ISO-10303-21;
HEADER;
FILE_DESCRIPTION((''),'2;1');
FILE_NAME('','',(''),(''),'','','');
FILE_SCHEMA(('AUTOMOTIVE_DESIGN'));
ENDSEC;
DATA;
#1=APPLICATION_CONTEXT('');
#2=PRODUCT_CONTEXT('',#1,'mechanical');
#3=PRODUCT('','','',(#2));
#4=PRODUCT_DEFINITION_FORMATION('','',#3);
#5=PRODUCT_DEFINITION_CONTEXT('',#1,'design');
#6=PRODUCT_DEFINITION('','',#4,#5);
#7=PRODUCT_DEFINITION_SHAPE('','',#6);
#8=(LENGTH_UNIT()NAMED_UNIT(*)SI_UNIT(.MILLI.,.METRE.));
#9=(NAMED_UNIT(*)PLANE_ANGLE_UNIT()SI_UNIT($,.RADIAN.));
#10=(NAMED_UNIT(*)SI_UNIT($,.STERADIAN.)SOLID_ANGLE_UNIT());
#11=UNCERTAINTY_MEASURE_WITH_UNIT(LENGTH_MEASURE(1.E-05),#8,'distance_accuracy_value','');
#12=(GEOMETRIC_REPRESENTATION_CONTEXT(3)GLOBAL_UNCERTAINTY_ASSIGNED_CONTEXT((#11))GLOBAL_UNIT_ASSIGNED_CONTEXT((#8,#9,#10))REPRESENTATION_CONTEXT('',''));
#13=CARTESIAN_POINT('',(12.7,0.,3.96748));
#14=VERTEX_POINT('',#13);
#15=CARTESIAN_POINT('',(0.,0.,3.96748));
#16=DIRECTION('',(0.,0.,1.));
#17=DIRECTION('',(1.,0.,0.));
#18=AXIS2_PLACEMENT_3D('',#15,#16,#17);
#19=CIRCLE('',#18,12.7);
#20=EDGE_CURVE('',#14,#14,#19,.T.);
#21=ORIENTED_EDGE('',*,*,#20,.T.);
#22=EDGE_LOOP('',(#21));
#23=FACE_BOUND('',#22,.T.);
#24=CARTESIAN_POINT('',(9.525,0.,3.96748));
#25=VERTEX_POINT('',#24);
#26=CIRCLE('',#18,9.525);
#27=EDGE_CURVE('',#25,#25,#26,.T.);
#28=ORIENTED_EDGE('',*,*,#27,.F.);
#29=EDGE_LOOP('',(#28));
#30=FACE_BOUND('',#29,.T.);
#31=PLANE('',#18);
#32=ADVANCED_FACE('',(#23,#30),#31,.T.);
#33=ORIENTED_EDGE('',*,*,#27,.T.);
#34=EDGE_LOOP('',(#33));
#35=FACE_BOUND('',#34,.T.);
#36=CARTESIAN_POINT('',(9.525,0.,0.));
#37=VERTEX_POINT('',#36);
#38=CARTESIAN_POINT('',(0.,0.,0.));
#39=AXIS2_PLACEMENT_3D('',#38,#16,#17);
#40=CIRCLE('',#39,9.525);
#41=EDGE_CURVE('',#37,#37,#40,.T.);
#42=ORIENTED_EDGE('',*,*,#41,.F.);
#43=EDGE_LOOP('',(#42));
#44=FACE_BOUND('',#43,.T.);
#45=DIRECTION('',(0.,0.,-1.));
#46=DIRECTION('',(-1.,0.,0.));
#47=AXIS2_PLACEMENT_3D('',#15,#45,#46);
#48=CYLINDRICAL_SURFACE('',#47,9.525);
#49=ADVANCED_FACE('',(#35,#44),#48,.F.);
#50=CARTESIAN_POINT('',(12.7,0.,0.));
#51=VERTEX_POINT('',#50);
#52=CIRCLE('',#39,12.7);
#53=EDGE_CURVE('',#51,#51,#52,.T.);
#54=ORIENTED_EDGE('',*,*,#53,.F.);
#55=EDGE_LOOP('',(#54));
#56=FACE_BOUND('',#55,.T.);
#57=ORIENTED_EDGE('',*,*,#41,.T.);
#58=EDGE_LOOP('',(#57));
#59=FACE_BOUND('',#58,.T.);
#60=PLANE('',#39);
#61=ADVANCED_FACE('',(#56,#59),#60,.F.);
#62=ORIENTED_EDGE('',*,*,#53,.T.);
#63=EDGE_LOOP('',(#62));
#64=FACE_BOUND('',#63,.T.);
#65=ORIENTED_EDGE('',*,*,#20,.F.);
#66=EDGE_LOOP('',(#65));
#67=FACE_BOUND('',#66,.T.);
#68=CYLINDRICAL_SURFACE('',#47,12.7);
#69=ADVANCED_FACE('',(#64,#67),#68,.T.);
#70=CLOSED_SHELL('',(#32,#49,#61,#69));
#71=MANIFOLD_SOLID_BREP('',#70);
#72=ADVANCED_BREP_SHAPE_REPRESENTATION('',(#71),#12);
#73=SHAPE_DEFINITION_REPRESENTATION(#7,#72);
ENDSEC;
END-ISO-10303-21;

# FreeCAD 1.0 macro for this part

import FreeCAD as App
import Part
import Sketcher
from FreeCAD import Vector
Q = App.Units.Quantity

doc = App.newDocument("Part")
body = doc.addObject("PartDesign::Body", "Body")

sketch1 = body.newObject("Sketcher::SketchObject", "Sketch")
sketch1.AttachmentSupport = (doc.getObject("XY_Plane"), [""])
sketch1.MapMode = "FlatFace"
sketch1.addGeometry(Part.Circle(Vector(0, 0, 0), Vector(0, 0, 1), 13), False)
sketch1.addGeometry(Part.Circle(Vector(0, 0, 0), Vector(0, 0, 1), 10), False)
sketch1.addConstraint(Sketcher.Constraint("Coincident", 0, 3, -1, 1))
sketch1.addConstraint(Sketcher.Constraint("Coincident", 1, 3, -1, 1))
sketch1.addConstraint(Sketcher.Constraint("Diameter", 0, Q("1 in")))
sketch1.addConstraint(Sketcher.Constraint("Diameter", 1, Q("0.75 in")))
pad1 = body.newObject("PartDesign::Pad", "Pad")
pad1.Profile = sketch1
pad1.Length = Q("0.1562 in")

doc.recompute()
